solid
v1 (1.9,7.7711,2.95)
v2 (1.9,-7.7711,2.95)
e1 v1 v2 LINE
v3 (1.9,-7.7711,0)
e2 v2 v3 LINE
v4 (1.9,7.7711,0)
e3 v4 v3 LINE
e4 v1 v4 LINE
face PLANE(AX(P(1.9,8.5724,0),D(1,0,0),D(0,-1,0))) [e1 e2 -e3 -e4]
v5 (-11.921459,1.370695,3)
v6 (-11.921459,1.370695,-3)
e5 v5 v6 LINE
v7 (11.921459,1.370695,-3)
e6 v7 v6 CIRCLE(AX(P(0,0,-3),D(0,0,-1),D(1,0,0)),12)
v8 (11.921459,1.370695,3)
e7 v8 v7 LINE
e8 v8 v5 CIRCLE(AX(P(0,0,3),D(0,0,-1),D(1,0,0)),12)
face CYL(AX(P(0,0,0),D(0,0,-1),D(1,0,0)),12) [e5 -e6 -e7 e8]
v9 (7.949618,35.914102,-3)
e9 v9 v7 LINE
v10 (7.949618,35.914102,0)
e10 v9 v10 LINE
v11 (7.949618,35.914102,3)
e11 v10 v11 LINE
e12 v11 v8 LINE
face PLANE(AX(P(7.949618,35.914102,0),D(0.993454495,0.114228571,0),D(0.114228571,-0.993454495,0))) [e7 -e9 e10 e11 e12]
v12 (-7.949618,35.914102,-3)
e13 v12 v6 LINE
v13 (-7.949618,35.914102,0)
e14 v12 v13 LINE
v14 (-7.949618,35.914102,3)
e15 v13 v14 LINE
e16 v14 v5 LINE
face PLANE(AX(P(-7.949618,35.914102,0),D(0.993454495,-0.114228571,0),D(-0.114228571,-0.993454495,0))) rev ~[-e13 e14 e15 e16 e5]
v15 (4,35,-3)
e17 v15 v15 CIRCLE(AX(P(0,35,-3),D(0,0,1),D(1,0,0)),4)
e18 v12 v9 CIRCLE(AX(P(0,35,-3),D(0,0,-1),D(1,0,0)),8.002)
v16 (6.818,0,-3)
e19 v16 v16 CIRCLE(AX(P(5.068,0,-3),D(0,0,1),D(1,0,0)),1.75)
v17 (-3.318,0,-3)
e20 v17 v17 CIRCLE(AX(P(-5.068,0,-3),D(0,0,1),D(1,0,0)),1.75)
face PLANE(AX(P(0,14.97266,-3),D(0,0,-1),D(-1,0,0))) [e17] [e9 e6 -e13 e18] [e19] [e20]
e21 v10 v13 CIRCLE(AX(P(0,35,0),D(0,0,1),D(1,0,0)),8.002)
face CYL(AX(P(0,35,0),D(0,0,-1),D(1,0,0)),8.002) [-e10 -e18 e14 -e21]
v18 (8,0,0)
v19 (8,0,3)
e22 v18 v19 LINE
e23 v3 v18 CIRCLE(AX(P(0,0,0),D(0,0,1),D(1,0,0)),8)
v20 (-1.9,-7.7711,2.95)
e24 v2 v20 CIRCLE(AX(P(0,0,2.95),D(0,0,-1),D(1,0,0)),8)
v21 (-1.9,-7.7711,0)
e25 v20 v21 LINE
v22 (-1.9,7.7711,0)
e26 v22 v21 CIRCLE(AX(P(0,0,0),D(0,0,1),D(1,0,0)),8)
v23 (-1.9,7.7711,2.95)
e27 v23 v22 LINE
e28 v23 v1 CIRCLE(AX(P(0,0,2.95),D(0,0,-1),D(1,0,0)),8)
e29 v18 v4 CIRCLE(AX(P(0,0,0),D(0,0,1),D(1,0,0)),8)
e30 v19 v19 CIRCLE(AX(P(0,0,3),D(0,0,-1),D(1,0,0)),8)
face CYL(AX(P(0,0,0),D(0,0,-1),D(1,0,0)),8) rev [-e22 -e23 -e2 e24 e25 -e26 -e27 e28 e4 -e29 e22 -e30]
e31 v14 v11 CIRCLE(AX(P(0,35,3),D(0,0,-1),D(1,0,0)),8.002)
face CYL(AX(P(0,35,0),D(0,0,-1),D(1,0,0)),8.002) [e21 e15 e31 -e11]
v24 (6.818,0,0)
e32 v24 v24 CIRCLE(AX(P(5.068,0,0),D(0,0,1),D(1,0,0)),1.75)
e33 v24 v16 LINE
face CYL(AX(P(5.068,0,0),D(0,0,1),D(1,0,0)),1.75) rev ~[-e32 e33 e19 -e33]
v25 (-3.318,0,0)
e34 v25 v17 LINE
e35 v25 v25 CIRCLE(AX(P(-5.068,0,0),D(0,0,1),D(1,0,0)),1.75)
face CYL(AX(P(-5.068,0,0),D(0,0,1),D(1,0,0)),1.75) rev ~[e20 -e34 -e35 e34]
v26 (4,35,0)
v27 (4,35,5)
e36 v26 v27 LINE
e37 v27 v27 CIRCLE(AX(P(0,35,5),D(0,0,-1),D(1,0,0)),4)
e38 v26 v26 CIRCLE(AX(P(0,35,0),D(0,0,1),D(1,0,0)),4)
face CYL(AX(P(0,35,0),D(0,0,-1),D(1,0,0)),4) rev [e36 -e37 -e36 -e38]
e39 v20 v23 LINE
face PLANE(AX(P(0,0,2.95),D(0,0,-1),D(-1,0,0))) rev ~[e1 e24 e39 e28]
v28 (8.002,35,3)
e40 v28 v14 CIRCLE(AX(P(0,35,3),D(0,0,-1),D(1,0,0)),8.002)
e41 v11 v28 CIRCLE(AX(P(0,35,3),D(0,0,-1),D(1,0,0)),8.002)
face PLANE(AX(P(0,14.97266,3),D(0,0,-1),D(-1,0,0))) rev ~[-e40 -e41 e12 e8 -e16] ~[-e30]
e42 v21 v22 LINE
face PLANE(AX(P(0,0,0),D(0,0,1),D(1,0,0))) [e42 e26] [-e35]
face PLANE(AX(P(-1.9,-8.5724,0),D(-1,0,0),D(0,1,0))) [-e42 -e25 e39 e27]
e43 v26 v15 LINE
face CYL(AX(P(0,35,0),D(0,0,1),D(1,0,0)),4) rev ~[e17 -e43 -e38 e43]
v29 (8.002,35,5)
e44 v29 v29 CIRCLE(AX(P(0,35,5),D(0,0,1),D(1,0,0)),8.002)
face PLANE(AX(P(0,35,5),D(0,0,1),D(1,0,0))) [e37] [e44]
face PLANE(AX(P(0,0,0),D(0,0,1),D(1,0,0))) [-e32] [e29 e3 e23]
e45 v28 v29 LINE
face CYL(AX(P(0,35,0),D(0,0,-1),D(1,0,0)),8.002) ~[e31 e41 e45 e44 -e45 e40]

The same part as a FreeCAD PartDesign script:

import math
import FreeCAD as App
import Part
import Sketcher

V = App.Vector

doc = App.newDocument("Part")
body = doc.addObject("PartDesign::Body", "Body")

# Sketch on XY plane
sketch1 = body.newObject("Sketcher::SketchObject", "Sketch")
sketch1.AttachmentSupport = (doc.getObject("XY_Plane"), [""])
sketch1.MapMode = "FlatFace"
sketch1.addGeometry([
    Part.LineSegment(V(12, 1, 0), V(8, 36, 0)),
    Part.ArcOfCircle(Part.Circle(V(0, 35, 0), V(0, 0, 1), 8), math.radians(7), math.radians(173)),
    Part.LineSegment(V(-8, 36, 0), V(-12, 1, 0)),
    Part.ArcOfCircle(Part.Circle(V(0, 0, 0), V(0, 0, 1), 12), math.radians(173), math.radians(367)),
], False)
sketch1.addConstraint([
    Sketcher.Constraint("Tangent", 0, 2, 1, 1),
    Sketcher.Constraint("Tangent", 1, 2, 2, 1),
    Sketcher.Constraint("Tangent", 2, 2, 3, 1),
    Sketcher.Constraint("Tangent", 3, 2, 0, 1),
    Sketcher.Constraint("Coincident", 3, 3, -1, 1),
    Sketcher.Constraint("PointOnObject", 1, 3, -2),
    Sketcher.Constraint("Radius", 3, 12.0),
    Sketcher.Constraint("DistanceY", -1, 1, 1, 3, 35.0),
    Sketcher.Constraint("Radius", 1, 8.002),
])
pad1 = body.newObject("PartDesign::Pad", "Pad")
pad1.Profile = sketch1
pad1.Length = 6
pad1.Midplane = True

# Sketch on XY plane
sketch2 = body.newObject("Sketcher::SketchObject", "Sketch001")
sketch2.AttachmentSupport = (doc.getObject("XY_Plane"), [""])
sketch2.MapMode = "FlatFace"
sketch2.addGeometry(Part.Circle(V(0, 0, 0), V(0, 0, 1), 8), False)
sketch2.addConstraint([
    Sketcher.Constraint("Coincident", 0, 3, -1, 1),
    Sketcher.Constraint("Diameter", 0, 16.0),
])
pocket1 = body.newObject("PartDesign::Pocket", "Pocket")
pocket1.Profile = sketch2
pocket1.Length = 28.5335
pocket1.Reversed = True

# Sketch on XY plane
sketch3 = body.newObject("Sketcher::SketchObject", "Sketch002")
sketch3.AttachmentSupport = (doc.getObject("XY_Plane"), [""])
sketch3.MapMode = "FlatFace"
sketch3.addGeometry([
    Part.Circle(V(-5.1, 0, 0), V(0, 0, 1), 1.8),
    Part.Circle(V(5.1, 0, 0), V(0, 0, 1), 1.8),
], False)
sketch3.addConstraint([
    Sketcher.Constraint("Equal", 0, 1),
    Sketcher.Constraint("Symmetric", 0, 3, 1, 3, -1, 1),
    Sketcher.Constraint("PointOnObject", 0, 3, -1),
    Sketcher.Constraint("Diameter", 0, 3.5),
    Sketcher.Constraint("DistanceX", 0, 3, -1, 1, 5.068),
])
pocket2 = body.newObject("PartDesign::Pocket", "Pocket001")
pocket2.Profile = sketch3
pocket2.Length = 265.7863
pocket2.Midplane = True

# Sketch on XY plane
sketch4 = body.newObject("Sketcher::SketchObject", "Sketch003")
sketch4.AttachmentSupport = (doc.getObject("XY_Plane"), [""])
sketch4.MapMode = "FlatFace"
sketch4.addGeometry(Part.Circle(V(0, 35, 0), V(0, 0, 1), 4), False)
sketch4.addConstraint([
    Sketcher.Constraint("PointOnObject", 0, 3, -2),
    Sketcher.Constraint("Diameter", 0, 8.0),
    Sketcher.Constraint("DistanceY", -1, 1, 0, 3, 35.0),
])
pocket3 = body.newObject("PartDesign::Pocket", "Pocket002")
pocket3.Profile = sketch4
pocket3.Length = 190.7262
pocket3.Midplane = True

# Sketch on XY plane
sketch5 = body.newObject("Sketcher::SketchObject", "Sketch004")
sketch5.AttachmentSupport = (doc.getObject("XY_Plane"), [""])
sketch5.MapMode = "FlatFace"
sketch5.addGeometry(Part.Circle(V(0, 35, 0), V(0, 0, 1), 8), False)
sketch5.addConstraint([
    Sketcher.Constraint("PointOnObject", 0, 3, -2),
    Sketcher.Constraint("Diameter", 0, 16.004),
    Sketcher.Constraint("DistanceY", -1, 1, 0, 3, 35.0),
])
pad2 = body.newObject("PartDesign::Pad", "Pad001")
pad2.Profile = sketch5
pad2.Length = 5

# Sketch on XY plane
sketch6 = body.newObject("Sketcher::SketchObject", "Sketch005")
sketch6.AttachmentSupport = (doc.getObject("XY_Plane"), [""])
sketch6.MapMode = "FlatFace"
sketch6.addGeometry(Part.Circle(V(0, 35, 0), V(0, 0, 1), 4), False)
sketch6.addConstraint([
    Sketcher.Constraint("PointOnObject", 0, 3, -2),
    Sketcher.Constraint("Diameter", 0, 8.0),
    Sketcher.Constraint("DistanceY", -1, 1, 0, 3, 35.0),
])
pocket4 = body.newObject("PartDesign::Pocket", "Pocket003")
pocket4.Profile = sketch6
pocket4.Length = 58.2949
pocket4.Midplane = True

# Sketch on XY plane
sketch7 = body.newObject("Sketcher::SketchObject", "Sketch006")
sketch7.AttachmentSupport = (doc.getObject("XY_Plane"), [""])
sketch7.MapMode = "FlatFace"
sketch7.addGeometry([
    Part.LineSegment(V(1.9, 8.6, 0), V(-1.9, 8.6, 0)),
    Part.LineSegment(V(-1.9, 8.6, 0), V(-1.9, -8.6, 0)),
    Part.LineSegment(V(-1.9, -8.6, 0), V(1.9, -8.6, 0)),
    Part.LineSegment(V(1.9, -8.6, 0), V(1.9, 8.6, 0)),
], False)
sketch7.addConstraint([
    Sketcher.Constraint("Coincident", 0, 2, 1, 1),
    Sketcher.Constraint("Coincident", 1, 2, 2, 1),
    Sketcher.Constraint("Coincident", 2, 2, 3, 1),
    Sketcher.Constraint("Coincident", 3, 2, 0, 1),
    Sketcher.Constraint("Horizontal", 0),
    Sketcher.Constraint("Vertical", 1),
    Sketcher.Constraint("Horizontal", 2),
    Sketcher.Constraint("Vertical", 3),
    Sketcher.Constraint("Symmetric", 0, 2, 2, 2, -1, 1),
    Sketcher.Constraint("DistanceX", 0, 2, 0, 1, 3.8),
    Sketcher.Constraint("DistanceY", 1, 2, 1, 1, 17.1448),
])
pad3 = body.newObject("PartDesign::Pad", "Pad002")
pad3.Profile = sketch7
pad3.Length = 2.95

doc.recompute()
